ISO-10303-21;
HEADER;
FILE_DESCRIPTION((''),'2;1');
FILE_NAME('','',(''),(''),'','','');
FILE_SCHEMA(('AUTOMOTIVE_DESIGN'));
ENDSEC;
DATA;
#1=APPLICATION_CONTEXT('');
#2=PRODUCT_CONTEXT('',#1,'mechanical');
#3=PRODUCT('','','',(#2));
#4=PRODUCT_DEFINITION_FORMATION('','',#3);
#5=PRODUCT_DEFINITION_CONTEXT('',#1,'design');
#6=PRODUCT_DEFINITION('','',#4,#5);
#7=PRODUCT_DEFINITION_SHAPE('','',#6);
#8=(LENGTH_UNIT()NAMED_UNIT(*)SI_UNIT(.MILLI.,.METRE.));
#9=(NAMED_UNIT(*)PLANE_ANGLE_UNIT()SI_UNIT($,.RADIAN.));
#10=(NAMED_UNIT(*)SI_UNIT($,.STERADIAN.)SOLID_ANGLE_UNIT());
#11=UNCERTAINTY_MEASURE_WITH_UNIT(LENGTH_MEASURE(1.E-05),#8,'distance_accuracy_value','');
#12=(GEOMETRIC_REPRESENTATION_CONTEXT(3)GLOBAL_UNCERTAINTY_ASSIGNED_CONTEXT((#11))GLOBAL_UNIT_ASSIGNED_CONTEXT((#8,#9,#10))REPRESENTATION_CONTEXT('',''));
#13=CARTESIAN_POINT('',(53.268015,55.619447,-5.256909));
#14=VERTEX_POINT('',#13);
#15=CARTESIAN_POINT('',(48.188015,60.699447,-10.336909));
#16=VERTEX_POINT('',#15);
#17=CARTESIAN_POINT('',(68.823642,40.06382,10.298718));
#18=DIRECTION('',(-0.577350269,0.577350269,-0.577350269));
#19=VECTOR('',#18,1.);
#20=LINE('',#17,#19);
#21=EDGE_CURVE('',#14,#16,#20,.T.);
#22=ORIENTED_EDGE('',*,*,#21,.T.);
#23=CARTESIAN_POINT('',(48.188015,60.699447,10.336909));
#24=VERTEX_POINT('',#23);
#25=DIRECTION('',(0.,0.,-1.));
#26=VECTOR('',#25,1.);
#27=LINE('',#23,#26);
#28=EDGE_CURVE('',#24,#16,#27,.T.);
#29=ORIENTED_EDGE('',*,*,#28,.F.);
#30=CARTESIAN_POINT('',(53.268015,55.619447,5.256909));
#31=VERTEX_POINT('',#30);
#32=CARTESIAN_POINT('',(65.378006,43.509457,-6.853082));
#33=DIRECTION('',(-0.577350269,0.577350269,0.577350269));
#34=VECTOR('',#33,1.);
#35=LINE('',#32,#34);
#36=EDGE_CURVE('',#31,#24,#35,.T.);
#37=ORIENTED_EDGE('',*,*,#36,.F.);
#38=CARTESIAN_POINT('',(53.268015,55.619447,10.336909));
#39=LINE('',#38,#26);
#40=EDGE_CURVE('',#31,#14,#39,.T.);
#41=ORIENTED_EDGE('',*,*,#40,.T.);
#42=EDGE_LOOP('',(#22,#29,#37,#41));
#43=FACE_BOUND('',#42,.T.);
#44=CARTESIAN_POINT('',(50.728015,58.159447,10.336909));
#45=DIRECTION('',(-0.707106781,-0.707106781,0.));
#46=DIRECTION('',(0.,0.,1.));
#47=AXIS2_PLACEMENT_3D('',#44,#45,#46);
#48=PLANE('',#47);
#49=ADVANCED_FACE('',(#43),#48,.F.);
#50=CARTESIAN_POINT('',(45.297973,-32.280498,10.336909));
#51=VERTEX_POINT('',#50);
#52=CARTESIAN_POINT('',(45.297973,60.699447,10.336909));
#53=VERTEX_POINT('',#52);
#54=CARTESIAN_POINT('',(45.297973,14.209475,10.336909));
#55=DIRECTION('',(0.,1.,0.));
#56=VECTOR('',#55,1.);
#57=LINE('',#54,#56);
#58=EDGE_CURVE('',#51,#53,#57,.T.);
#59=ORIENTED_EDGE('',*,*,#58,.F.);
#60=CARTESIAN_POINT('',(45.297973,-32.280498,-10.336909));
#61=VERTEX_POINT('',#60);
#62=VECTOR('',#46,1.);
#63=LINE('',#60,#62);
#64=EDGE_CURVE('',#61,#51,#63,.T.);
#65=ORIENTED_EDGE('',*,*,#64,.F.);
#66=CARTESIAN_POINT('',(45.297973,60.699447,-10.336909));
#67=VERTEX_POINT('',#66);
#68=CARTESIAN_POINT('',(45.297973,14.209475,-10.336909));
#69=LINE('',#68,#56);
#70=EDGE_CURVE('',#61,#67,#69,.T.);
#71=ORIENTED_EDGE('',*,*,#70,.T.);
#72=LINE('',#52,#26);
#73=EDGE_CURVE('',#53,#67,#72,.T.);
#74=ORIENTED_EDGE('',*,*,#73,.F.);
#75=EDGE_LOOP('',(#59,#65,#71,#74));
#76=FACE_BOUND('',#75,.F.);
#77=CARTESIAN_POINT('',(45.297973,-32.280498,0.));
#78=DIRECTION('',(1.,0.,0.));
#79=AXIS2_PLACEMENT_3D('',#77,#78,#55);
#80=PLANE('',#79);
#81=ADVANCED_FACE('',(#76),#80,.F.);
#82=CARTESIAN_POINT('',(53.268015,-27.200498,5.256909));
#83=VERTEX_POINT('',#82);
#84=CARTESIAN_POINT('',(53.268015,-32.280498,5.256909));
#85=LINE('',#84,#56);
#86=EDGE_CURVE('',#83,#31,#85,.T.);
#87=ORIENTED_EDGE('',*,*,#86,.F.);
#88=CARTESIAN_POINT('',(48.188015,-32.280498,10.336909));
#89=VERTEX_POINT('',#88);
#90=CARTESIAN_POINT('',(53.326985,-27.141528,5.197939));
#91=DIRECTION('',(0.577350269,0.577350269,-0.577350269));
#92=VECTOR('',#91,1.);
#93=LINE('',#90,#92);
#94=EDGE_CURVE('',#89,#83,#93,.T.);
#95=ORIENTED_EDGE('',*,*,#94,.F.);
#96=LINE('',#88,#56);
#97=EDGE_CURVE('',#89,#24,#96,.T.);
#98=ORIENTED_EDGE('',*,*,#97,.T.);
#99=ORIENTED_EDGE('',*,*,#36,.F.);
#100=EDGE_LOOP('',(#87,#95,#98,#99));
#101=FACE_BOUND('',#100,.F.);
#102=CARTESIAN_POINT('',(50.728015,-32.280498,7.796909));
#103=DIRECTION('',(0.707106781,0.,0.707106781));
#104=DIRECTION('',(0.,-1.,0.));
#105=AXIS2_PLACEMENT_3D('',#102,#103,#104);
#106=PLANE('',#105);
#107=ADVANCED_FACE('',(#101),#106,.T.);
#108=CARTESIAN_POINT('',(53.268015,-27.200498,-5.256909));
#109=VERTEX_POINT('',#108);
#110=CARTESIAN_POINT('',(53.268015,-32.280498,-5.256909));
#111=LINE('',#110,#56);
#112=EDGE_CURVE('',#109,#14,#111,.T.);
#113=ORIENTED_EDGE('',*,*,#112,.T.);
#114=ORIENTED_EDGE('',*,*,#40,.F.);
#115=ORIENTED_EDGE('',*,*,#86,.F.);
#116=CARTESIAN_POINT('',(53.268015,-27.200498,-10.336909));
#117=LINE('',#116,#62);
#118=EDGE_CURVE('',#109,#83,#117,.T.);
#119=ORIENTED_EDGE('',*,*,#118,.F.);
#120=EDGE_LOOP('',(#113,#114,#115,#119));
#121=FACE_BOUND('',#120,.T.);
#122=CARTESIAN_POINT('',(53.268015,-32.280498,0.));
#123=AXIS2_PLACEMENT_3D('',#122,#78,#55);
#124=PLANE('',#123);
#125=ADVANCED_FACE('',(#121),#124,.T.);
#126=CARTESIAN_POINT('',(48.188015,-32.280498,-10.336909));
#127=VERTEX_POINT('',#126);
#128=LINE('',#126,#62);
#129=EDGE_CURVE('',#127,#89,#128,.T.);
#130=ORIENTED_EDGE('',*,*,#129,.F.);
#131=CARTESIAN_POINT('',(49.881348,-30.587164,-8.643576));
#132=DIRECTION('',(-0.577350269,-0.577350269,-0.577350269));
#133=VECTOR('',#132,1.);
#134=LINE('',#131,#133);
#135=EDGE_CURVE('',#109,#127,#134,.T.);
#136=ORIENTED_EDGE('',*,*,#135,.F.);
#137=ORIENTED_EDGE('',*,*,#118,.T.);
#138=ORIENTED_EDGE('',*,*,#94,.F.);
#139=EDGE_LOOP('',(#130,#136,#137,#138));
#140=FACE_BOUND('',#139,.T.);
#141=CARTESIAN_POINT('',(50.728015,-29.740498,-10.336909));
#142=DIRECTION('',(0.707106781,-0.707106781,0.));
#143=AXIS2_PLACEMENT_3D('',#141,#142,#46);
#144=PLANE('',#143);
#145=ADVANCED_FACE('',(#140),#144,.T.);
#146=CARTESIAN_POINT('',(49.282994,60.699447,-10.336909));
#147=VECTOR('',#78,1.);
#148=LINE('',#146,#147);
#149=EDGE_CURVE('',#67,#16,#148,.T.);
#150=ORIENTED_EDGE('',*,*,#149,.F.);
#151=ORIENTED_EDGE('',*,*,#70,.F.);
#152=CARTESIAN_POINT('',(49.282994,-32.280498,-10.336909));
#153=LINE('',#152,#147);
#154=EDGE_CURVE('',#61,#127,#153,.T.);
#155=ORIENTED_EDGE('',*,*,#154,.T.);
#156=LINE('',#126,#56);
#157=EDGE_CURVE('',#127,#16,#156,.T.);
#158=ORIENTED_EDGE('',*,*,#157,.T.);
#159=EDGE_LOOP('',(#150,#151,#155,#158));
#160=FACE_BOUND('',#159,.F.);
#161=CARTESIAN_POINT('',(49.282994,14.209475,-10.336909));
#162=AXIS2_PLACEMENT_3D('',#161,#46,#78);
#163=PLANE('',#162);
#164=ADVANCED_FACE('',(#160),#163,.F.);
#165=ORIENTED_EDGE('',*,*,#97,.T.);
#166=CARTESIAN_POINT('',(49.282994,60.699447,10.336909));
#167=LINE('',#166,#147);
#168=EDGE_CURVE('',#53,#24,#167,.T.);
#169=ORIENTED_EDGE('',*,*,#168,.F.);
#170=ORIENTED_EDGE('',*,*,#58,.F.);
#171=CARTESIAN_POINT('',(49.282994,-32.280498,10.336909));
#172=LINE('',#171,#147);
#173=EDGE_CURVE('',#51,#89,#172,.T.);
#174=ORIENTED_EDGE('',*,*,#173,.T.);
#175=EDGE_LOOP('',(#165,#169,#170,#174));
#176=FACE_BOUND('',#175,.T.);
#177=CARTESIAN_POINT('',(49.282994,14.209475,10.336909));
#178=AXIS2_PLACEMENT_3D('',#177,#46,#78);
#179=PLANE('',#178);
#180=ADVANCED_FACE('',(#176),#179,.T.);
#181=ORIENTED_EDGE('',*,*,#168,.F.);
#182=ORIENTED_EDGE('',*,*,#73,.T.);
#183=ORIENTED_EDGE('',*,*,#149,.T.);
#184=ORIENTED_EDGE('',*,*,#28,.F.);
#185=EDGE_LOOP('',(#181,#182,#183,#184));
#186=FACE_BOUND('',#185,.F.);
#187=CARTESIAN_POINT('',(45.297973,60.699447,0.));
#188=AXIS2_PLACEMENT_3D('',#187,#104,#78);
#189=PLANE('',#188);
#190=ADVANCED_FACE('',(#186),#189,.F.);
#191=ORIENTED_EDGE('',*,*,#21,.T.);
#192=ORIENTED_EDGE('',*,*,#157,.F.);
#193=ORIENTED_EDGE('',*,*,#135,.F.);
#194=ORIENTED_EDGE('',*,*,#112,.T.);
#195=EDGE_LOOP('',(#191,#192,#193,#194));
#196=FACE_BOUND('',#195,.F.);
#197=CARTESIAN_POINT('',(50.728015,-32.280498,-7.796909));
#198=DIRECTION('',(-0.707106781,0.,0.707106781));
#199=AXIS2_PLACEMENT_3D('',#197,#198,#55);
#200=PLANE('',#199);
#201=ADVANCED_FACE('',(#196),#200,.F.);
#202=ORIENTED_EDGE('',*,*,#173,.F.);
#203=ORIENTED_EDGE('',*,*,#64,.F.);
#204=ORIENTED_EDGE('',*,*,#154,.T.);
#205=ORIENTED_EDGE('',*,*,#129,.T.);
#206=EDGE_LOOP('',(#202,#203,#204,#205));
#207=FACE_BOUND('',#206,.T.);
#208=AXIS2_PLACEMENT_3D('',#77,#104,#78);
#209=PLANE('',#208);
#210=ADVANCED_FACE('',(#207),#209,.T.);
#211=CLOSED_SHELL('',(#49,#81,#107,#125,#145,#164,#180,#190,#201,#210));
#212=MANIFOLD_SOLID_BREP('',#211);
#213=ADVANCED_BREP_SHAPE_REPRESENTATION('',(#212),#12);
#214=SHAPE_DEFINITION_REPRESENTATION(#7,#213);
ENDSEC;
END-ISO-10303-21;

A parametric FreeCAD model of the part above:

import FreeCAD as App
import Part
import Sketcher

V = App.Vector
Q = App.Units.Quantity


def edges_at(feature, points):
    """Names of the edges that pass closest to the given points."""
    edges = feature.Shape.Edges
    near = lambda p: min(range(len(edges)), key=lambda i: edges[i].distToShape(Part.Vertex(*p))[0])
    return sorted({f"Edge{near(p) + 1}" for p in points})

doc = App.newDocument("Part")
body = doc.addObject("PartDesign::Body", "Body")

# Sketch on XY plane
sketch1 = doc.addObject("Sketcher::SketchObject", "Sketch")
body.addObject(sketch1)
sketch1.AttachmentSupport = (doc.XY_Plane, [""])
sketch1.MapMode = "FlatFace"
sketch1.addGeometry([
    Part.LineSegment(V(45.297973, 60.699447, 0), V(45.297973, -32.280498, 0)),
    Part.LineSegment(V(45.297973, -32.280498, 0), V(53.268015, -32.280498, 0)),
    Part.LineSegment(V(53.268015, -32.280498, 0), V(53.268015, 60.699447, 0)),
    Part.LineSegment(V(53.268015, 60.699447, 0), V(45.297973, 60.699447, 0)),
], False)
sketch1.addConstraint([
    Sketcher.Constraint("Coincident", 0, 2, 1, 1),
    Sketcher.Constraint("Coincident", 1, 2, 2, 1),
    Sketcher.Constraint("Coincident", 2, 2, 3, 1),
    Sketcher.Constraint("Coincident", 3, 2, 0, 1),
    Sketcher.Constraint("Vertical", 0),
    Sketcher.Constraint("Horizontal", 1),
    Sketcher.Constraint("Vertical", 2),
    Sketcher.Constraint("Horizontal", 3),
    Sketcher.Constraint("DistanceX", 1, 1, 1, 2, Q("7.970042 mm")),
    Sketcher.Constraint("DistanceY", 0, 2, 0, 1, Q("92.979945 mm")),
    Sketcher.Constraint("DistanceX", -1, 1, 0, 2, Q("45.297973 mm")),
    Sketcher.Constraint("DistanceY", 0, 2, -1, 1, Q("32.280498 mm")),
])
pad1 = doc.addObject("PartDesign::Pad", "Pad")
body.addObject(pad1)
pad1.Profile = sketch1
pad1.Length = 20.673818
pad1.Midplane = True
doc.recompute()

chamfer = doc.addObject("PartDesign::Chamfer", "Chamfer")
body.addObject(chamfer)
chamfer.Base = (pad1, edges_at(pad1, [
    (53.268, 14.209, -10.337),
    (53.268, 60.699, 0),
    (53.268, 14.209, 10.337),
    (53.268, -32.28, 0),
]))
chamfer.Size = Q("0.2 in")

doc.recompute()
